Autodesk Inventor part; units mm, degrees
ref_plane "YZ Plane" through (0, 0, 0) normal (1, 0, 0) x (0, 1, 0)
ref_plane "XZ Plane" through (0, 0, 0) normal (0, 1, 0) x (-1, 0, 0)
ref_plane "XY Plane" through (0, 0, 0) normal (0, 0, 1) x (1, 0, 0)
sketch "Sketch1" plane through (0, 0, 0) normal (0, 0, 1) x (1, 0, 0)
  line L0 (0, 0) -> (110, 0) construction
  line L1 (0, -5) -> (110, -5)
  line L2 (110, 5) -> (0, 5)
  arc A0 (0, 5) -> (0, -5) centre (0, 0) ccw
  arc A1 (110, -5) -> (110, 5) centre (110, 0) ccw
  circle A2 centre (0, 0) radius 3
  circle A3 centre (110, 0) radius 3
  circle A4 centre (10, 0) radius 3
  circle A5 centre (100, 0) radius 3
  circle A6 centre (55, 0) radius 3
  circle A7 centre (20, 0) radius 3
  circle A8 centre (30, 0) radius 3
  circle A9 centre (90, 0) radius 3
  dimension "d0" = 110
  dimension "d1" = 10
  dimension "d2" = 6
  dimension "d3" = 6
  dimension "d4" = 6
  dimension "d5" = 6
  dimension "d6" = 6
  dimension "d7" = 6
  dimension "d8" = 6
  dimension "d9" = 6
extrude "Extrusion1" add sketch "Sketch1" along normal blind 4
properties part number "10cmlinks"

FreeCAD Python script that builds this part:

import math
import FreeCAD as App
import Part
import Sketcher
Q = App.Units.Quantity

doc = App.newDocument("Part")
params = doc.addObject("Spreadsheet::Sheet", "Params")
for row, (alias, value) in enumerate([
    ("sketch1_diameter", "6 mm"),
    ("sketch1_radius", "5 mm"),
    ("sketch1_width", "110 mm"),
    ("pad1_length", "4 mm"),
], start=1):
    params.set(f"A{row}", alias)
    params.set(f"B{row}", "=" + value)
    params.setAlias(f"B{row}", alias)

body = doc.addObject("PartDesign::Body", "Body")

sketch1 = doc.addObject("Sketcher::SketchObject", "Sketch")
body.addObject(sketch1)
sketch1.AttachmentSupport = (doc.XY_Plane, [""])
sketch1.MapMode = "FlatFace"
sketch1.addGeometry([
    Part.ArcOfCircle(Part.Circle(App.Vector(0, 0, 0), App.Vector(0, 0, 1), 5), math.radians(90), math.radians(270)),
    Part.LineSegment(App.Vector(0, -5, 0), App.Vector(110, -5, 0)),
    Part.ArcOfCircle(Part.Circle(App.Vector(110, 0, 0), App.Vector(0, 0, 1), 5), math.radians(-90), math.radians(90)),
    Part.LineSegment(App.Vector(110, 5, 0), App.Vector(0, 5, 0)),
    Part.Circle(App.Vector(0, 0, 0), App.Vector(0, 0, 1), 3),
    Part.Circle(App.Vector(10, 0, 0), App.Vector(0, 0, 1), 3),
    Part.Circle(App.Vector(20, 0, 0), App.Vector(0, 0, 1), 3),
    Part.Circle(App.Vector(30, 0, 0), App.Vector(0, 0, 1), 3),
    Part.Circle(App.Vector(55, 0, 0), App.Vector(0, 0, 1), 3),
    Part.Circle(App.Vector(90, 0, 0), App.Vector(0, 0, 1), 3),
    Part.Circle(App.Vector(100, 0, 0), App.Vector(0, 0, 1), 3),
    Part.Circle(App.Vector(110, 0, 0), App.Vector(0, 0, 1), 3),
], False)
sketch1.addConstraint([
    Sketcher.Constraint("Tangent", 0, 2, 1, 1),
    Sketcher.Constraint("Tangent", 1, 2, 2, 1),
    Sketcher.Constraint("Tangent", 2, 2, 3, 1),
    Sketcher.Constraint("Tangent", 3, 2, 0, 1),
    Sketcher.Constraint("Horizontal", 1),
    Sketcher.Constraint("Horizontal", 3),
    Sketcher.Constraint("Coincident", 0, 3, -1, 1),
    Sketcher.Constraint("Coincident", 4, 3, -1, 1),
    Sketcher.Constraint("Coincident", 11, 3, 2, 3),
    Sketcher.Constraint("Equal", 4, 5),
    Sketcher.Constraint("Equal", 5, 6),
    Sketcher.Constraint("Equal", 6, 7),
    Sketcher.Constraint("Equal", 7, 8),
    Sketcher.Constraint("Equal", 8, 9),
    Sketcher.Constraint("Equal", 9, 10),
    Sketcher.Constraint("Equal", 10, 11),
    Sketcher.Constraint("PointOnObject", 5, 3, -1),
    Sketcher.Constraint("PointOnObject", 6, 3, -1),
    Sketcher.Constraint("PointOnObject", 7, 3, -1),
    Sketcher.Constraint("PointOnObject", 8, 3, -1),
    Sketcher.Constraint("PointOnObject", 9, 3, -1),
    Sketcher.Constraint("PointOnObject", 10, 3, -1),
    Sketcher.Constraint("Diameter", 4, Q("6 mm")),
    Sketcher.Constraint("Radius", 0, Q("5 mm")),
    Sketcher.Constraint("DistanceX", 1, 1, 1, 2, Q("110 mm")),
    Sketcher.Constraint("DistanceX", -1, 1, 5, 3, Q("10 mm")),
    Sketcher.Constraint("DistanceX", 5, 3, 6, 3, Q("10 mm")),
    Sketcher.Constraint("DistanceX", 6, 3, 7, 3, Q("10 mm")),
    Sketcher.Constraint("DistanceX", 10, 3, 2, 3, Q("10 mm")),
    Sketcher.Constraint("DistanceX", 9, 3, 10, 3, Q("10 mm")),
    Sketcher.Constraint("DistanceX", -1, 1, 8, 3, Q("55 mm")),
])
sketch1.setExpression("Constraints[22]", "Params.sketch1_diameter")
sketch1.setExpression("Constraints[23]", "Params.sketch1_radius")
sketch1.setExpression("Constraints[24]", "Params.sketch1_width")
pad1 = doc.addObject("PartDesign::Pad", "Pad")
body.addObject(pad1)
pad1.Profile = sketch1
pad1.setExpression("Length", "Params.pad1_length")

doc.recompute()
